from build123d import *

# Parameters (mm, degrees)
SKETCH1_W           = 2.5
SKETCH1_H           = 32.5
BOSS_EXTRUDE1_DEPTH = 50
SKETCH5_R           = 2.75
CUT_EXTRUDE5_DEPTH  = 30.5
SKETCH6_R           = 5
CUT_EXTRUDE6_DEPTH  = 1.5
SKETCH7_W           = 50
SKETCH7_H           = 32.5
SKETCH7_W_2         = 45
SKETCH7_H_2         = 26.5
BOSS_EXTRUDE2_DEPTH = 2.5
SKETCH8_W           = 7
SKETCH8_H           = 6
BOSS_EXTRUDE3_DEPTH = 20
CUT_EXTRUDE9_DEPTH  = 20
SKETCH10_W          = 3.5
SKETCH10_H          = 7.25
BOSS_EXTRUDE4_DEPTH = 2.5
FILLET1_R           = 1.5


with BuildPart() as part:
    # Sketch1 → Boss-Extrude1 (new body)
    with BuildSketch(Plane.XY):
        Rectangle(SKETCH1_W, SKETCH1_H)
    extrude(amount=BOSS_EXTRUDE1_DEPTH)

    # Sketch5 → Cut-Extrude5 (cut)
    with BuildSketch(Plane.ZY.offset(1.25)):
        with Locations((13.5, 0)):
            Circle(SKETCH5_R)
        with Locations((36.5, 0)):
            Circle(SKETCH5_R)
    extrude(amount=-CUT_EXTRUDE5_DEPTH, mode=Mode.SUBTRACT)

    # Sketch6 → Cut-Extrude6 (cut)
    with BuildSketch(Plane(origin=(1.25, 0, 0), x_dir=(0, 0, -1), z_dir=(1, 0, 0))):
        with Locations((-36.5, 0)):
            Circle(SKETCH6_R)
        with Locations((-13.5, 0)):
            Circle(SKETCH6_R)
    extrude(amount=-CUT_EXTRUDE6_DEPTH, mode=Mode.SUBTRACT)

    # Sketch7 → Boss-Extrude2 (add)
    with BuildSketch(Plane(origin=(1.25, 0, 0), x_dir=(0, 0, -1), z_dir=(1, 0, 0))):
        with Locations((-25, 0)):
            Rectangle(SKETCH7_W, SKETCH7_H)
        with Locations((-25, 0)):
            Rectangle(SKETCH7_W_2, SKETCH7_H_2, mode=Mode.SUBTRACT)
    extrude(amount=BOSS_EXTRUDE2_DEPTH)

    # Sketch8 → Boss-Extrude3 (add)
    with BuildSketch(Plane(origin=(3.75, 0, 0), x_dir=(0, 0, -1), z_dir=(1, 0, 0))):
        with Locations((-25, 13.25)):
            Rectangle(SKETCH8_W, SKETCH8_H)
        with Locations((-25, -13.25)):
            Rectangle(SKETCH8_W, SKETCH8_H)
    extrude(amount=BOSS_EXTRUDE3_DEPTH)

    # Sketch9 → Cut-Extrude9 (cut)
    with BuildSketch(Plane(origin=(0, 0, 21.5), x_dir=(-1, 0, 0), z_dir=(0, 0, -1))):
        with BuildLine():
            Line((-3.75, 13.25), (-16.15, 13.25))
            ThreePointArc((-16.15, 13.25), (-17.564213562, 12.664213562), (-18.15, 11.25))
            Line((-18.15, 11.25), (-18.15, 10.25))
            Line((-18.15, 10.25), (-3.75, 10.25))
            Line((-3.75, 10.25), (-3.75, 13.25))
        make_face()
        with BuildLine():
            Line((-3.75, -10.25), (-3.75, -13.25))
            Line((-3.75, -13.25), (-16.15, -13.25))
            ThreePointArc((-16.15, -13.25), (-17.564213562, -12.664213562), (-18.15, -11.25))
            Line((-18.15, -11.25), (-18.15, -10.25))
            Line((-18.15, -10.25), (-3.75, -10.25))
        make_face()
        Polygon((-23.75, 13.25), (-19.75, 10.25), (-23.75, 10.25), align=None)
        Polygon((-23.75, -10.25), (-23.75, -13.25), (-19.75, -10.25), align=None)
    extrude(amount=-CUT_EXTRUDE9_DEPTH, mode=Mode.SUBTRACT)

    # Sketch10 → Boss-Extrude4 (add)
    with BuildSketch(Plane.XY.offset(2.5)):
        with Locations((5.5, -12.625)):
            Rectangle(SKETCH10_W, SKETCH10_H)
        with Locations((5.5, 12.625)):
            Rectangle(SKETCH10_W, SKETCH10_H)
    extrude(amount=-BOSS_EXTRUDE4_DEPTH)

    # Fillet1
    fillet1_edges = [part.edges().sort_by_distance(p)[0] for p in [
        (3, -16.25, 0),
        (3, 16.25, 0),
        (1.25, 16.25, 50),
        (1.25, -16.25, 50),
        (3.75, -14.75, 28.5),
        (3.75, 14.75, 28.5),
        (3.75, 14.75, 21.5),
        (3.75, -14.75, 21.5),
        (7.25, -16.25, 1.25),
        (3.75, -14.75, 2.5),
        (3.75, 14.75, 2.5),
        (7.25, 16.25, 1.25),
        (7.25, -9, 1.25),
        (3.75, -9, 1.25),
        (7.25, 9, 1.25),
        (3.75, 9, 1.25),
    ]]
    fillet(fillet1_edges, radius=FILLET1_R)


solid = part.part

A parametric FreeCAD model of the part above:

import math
import FreeCAD as App
import Part
import Sketcher

V = App.Vector


def edges_at(feature, points):
    """Names of the edges that pass closest to the given points."""
    edges = feature.Shape.Edges
    near = lambda p: min(range(len(edges)), key=lambda i: edges[i].distToShape(Part.Vertex(*p))[0])
    return sorted({f"Edge{near(p) + 1}" for p in points})


def add_polygon(sketch, points):
    """Adds a closed chain of lines whose ends are joined by coincident constraints."""
    first, n = sketch.GeometryCount, len(points)
    for a, b in zip(points, points[1:] + points[:1]):
        sketch.addGeometry(Part.LineSegment(App.Vector(*a, 0), App.Vector(*b, 0)), False)
    for i in range(n):
        sketch.addConstraint(Sketcher.Constraint("Coincident", first + i, 2, first + (i + 1) % n, 1))

doc = App.newDocument("Part")
body = doc.addObject("PartDesign::Body", "Body")

# Sketch on XY plane
sketch1 = doc.addObject("Sketcher::SketchObject", "Sketch")
body.addObject(sketch1)
sketch1.AttachmentSupport = (doc.XY_Plane, [""])
sketch1.MapMode = "FlatFace"
add_polygon(sketch1, [(-1.2, 16.2), (-1.2, -16.2), (1.2, -16.2), (1.2, 16.2)])  # lines 0-3
sketch1.addConstraint([
    Sketcher.Constraint("Vertical", 0),
    Sketcher.Constraint("Horizontal", 1),
    Sketcher.Constraint("Vertical", 2),
    Sketcher.Constraint("Horizontal", 3),
    Sketcher.Constraint("Symmetric", 0, 2, 2, 2, -1, 1),
    Sketcher.Constraint("DistanceX", 1, 1, 1, 2, 2.5),
    Sketcher.Constraint("DistanceY", 0, 2, 0, 1, 32.5),
])
pad1 = doc.addObject("PartDesign::Pad", "Pad")
body.addObject(pad1)
pad1.Profile = sketch1
pad1.Length = 50

# Sketch on YZ plane
sketch2 = doc.addObject("Sketcher::SketchObject", "Sketch001")
body.addObject(sketch2)
sketch2.AttachmentSupport = (doc.YZ_Plane, [""])
sketch2.MapMode = "FlatFace"
sketch2.AttachmentOffset = App.Placement(V(0, 0, -1.25), App.Rotation())
sketch2.addGeometry([
    Part.Circle(V(0, 13.5, 0), V(0, 0, 1), 2.8),
    Part.Circle(V(0, 36.5, 0), V(0, 0, 1), 2.8),
], False)
sketch2.addConstraint([
    Sketcher.Constraint("Equal", 0, 1),
    Sketcher.Constraint("PointOnObject", 0, 3, -2),
    Sketcher.Constraint("PointOnObject", 1, 3, -2),
    Sketcher.Constraint("Diameter", 0, 5.5),
    Sketcher.Constraint("DistanceY", 0, 3, 1, 3, 23.0),
    Sketcher.Constraint("DistanceY", -1, 1, 0, 3, 13.5),
])
pocket1 = doc.addObject("PartDesign::Pocket", "Pocket")
body.addObject(pocket1)
pocket1.Profile = sketch2
pocket1.Length = 30.5
pocket1.Reversed = True

# Sketch on YZ plane
sketch3 = doc.addObject("Sketcher::SketchObject", "Sketch002")
body.addObject(sketch3)
sketch3.AttachmentSupport = (doc.YZ_Plane, [""])
sketch3.MapMode = "FlatFace"
sketch3.AttachmentOffset = App.Placement(V(0, 0, 1.25), App.Rotation())
sketch3.addGeometry([
    Part.Circle(V(0, 36, 0), V(0, 0, 1), 5),
    Part.Circle(V(0, 14, 0), V(0, 0, 1), 5),
], False)
sketch3.addConstraint([
    Sketcher.Constraint("Equal", 0, 1),
    Sketcher.Constraint("PointOnObject", 0, 3, -2),
    Sketcher.Constraint("PointOnObject", 1, 3, -2),
    Sketcher.Constraint("Diameter", 0, 10.0),
    Sketcher.Constraint("DistanceY", 1, 3, 0, 3, 23.0),
    Sketcher.Constraint("DistanceY", -1, 1, 0, 3, 36.5),
])
pocket2 = doc.addObject("PartDesign::Pocket", "Pocket001")
body.addObject(pocket2)
pocket2.Profile = sketch3
pocket2.Length = 1.5

# Sketch on YZ plane
sketch4 = doc.addObject("Sketcher::SketchObject", "Sketch003")
body.addObject(sketch4)
sketch4.AttachmentSupport = (doc.YZ_Plane, [""])
sketch4.MapMode = "FlatFace"
sketch4.AttachmentOffset = App.Placement(V(0, 0, 1.25), App.Rotation())
add_polygon(sketch4, [(16, 50), (-16, 50), (-16, 0), (16, 0)])  # lines 0-3
add_polygon(sketch4, [(-13, 2), (-13, 48), (13, 48), (13, 2)])  # lines 4-7
sketch4.addConstraint([
    Sketcher.Constraint("Horizontal", 0),
    Sketcher.Constraint("Vertical", 1),
    Sketcher.Constraint("Horizontal", 2),
    Sketcher.Constraint("Vertical", 3),
    Sketcher.Constraint("Vertical", 4),
    Sketcher.Constraint("Horizontal", 5),
    Sketcher.Constraint("Vertical", 6),
    Sketcher.Constraint("Horizontal", 7),
    Sketcher.Constraint("Symmetric", 1, 2, 2, 2, -1, 1),
    Sketcher.Constraint("DistanceY", 1, 2, 1, 1, 50.0),
    Sketcher.Constraint("DistanceY", 4, 1, 4, 2, 45.0),
    Sketcher.Constraint("DistanceX", 0, 2, 0, 1, 32.5),
    Sketcher.Constraint("DistanceX", 5, 1, 5, 2, 26.5),
    Sketcher.Constraint("DistanceX", 0, 2, 4, 2, 3.0),
    Sketcher.Constraint("DistanceY", -1, 1, 4, 2, 47.5),
])
pad2 = doc.addObject("PartDesign::Pad", "Pad001")
body.addObject(pad2)
pad2.Profile = sketch4
pad2.Length = 2.5

# Sketch on YZ plane
sketch5 = doc.addObject("Sketcher::SketchObject", "Sketch004")
body.addObject(sketch5)
sketch5.AttachmentSupport = (doc.YZ_Plane, [""])
sketch5.MapMode = "FlatFace"
sketch5.AttachmentOffset = App.Placement(V(0, 0, 3.75), App.Rotation())
add_polygon(sketch5, [(16, 28), (10, 28), (10, 22), (16, 22)])  # lines 0-3
add_polygon(sketch5, [(-10, 28), (-16, 28), (-16, 22), (-10, 22)])  # lines 4-7
sketch5.addConstraint([
    Sketcher.Constraint("Horizontal", 0),
    Sketcher.Constraint("Vertical", 1),
    Sketcher.Constraint("Horizontal", 2),
    Sketcher.Constraint("Vertical", 3),
    Sketcher.Constraint("Horizontal", 4),
    Sketcher.Constraint("Vertical", 5),
    Sketcher.Constraint("Horizontal", 6),
    Sketcher.Constraint("Vertical", 7),
    Sketcher.Constraint("Symmetric", 3, 2, 4, 2, -2),
    Sketcher.Constraint("Symmetric", 1, 2, 6, 2, -2),
    Sketcher.Constraint("DistanceX", 0, 2, 0, 1, 6.0),
    Sketcher.Constraint("DistanceY", 1, 2, 1, 1, 7.0),
    Sketcher.Constraint("DistanceY", -1, 1, 0, 2, 28.5),
    Sketcher.Constraint("DistanceX", 4, 2, 0, 2, 26.5),
])
pad3 = doc.addObject("PartDesign::Pad", "Pad002")
body.addObject(pad3)
pad3.Profile = sketch5
pad3.Length = 20

# Sketch on XY plane
sketch6 = doc.addObject("Sketcher::SketchObject", "Sketch005")
body.addObject(sketch6)
sketch6.AttachmentSupport = (doc.XY_Plane, [""])
sketch6.MapMode = "FlatFace"
sketch6.AttachmentOffset = App.Placement(V(0, 0, 21.5), App.Rotation())
sketch6.addGeometry(Part.LineSegment(V(3.8, 13.2, 0), V(16.1, 13.2, 0)), False)  # 0
sketch6.addGeometry(Part.ArcOfCircle(Part.Circle(V(16.1, 11.2, 0), V(0, 0, 1), 2), math.radians(0), math.radians(90)), False)  # 1
sketch6.addGeometry(Part.LineSegment(V(18.1, 11.2, 0), V(18.1, 10.2, 0)), False)  # 2
sketch6.addGeometry(Part.LineSegment(V(18.1, 10.2, 0), V(3.8, 10.2, 0)), False)  # 3
sketch6.addGeometry(Part.LineSegment(V(3.8, 10.2, 0), V(3.8, 13.2, 0)), False)  # 4
sketch6.addGeometry(Part.LineSegment(V(3.8, -13.2, 0), V(3.8, -10.2, 0)), False)  # 5
sketch6.addGeometry(Part.LineSegment(V(3.8, -10.2, 0), V(18.1, -10.2, 0)), False)  # 6
sketch6.addGeometry(Part.LineSegment(V(18.1, -10.2, 0), V(18.1, -11.2, 0)), False)  # 7
sketch6.addGeometry(Part.ArcOfCircle(Part.Circle(V(16.1, -11.2, 0), V(0, 0, 1), 2), math.radians(-90), math.radians(0)), False)  # 8
sketch6.addGeometry(Part.LineSegment(V(16.1, -13.2, 0), V(3.8, -13.2, 0)), False)  # 9
add_polygon(sketch6, [(19.8, 10.2), (23.8, 13.2), (23.8, 10.2)])  # lines 10-12
add_polygon(sketch6, [(23.8, -10.2), (23.8, -13.2), (19.8, -10.2)])  # lines 13-15
sketch6.addConstraint([
    Sketcher.Constraint("Tangent", 0, 2, 1, 2),
    Sketcher.Constraint("Tangent", 1, 1, 2, 1),
    Sketcher.Constraint("Coincident", 2, 2, 3, 1),
    Sketcher.Constraint("Coincident", 3, 2, 4, 1),
    Sketcher.Constraint("Coincident", 4, 2, 0, 1),
    Sketcher.Constraint("Coincident", 5, 2, 6, 1),
    Sketcher.Constraint("Coincident", 6, 2, 7, 1),
    Sketcher.Constraint("Tangent", 7, 2, 8, 2),
    Sketcher.Constraint("Tangent", 8, 1, 9, 1),
    Sketcher.Constraint("Coincident", 9, 2, 5, 1),
    Sketcher.Constraint("Horizontal", 0),
    Sketcher.Constraint("Vertical", 2),
    Sketcher.Constraint("Horizontal", 3),
    Sketcher.Constraint("Vertical", 4),
    Sketcher.Constraint("Vertical", 5),
    Sketcher.Constraint("Horizontal", 6),
    Sketcher.Constraint("Vertical", 7),
    Sketcher.Constraint("Horizontal", 9),
    Sketcher.Constraint("Vertical", 11),
    Sketcher.Constraint("Horizontal", 12),
    Sketcher.Constraint("Vertical", 13),
    Sketcher.Constraint("Horizontal", 15),
    Sketcher.Constraint("Equal", 1, 8),
    Sketcher.Constraint("Symmetric", 1, 3, 8, 3, -1),
    Sketcher.Constraint("Symmetric", 3, 2, 5, 2, -1),
    Sketcher.Constraint("Symmetric", 10, 2, 13, 2, -1),
    Sketcher.Constraint("Symmetric", 12, 2, 14, 2, -1),
    Sketcher.Constraint("Horizontal", 4, 2, 10, 2),
    Sketcher.Constraint("Horizontal", 3, 2, 11, 2),
    Sketcher.Constraint("Radius", 1, 2.0),
    Sketcher.Constraint("DistanceX", 12, 2, 12, 1, 4.0),
    Sketcher.Constraint("DistanceY", 2, 2, 2, 1, 1.0),
    Sketcher.Constraint("DistanceX", 0, 1, 0, 2, 12.4),
    Sketcher.Constraint("DistanceX", 4, 2, 10, 2, 20.0),
    Sketcher.Constraint("DistanceY", 8, 3, 1, 3, 22.5),
    Sketcher.Constraint("DistanceX", -1, 1, 1, 3, 16.15),
])
pocket3 = doc.addObject("PartDesign::Pocket", "Pocket002")
body.addObject(pocket3)
pocket3.Profile = sketch6
pocket3.Length = 20
pocket3.Reversed = True

# Sketch on XY plane
sketch7 = doc.addObject("Sketcher::SketchObject", "Sketch006")
body.addObject(sketch7)
sketch7.AttachmentSupport = (doc.XY_Plane, [""])
sketch7.MapMode = "FlatFace"
sketch7.AttachmentOffset = App.Placement(V(0, 0, 2.5), App.Rotation())
add_polygon(sketch7, [(3.8, -9), (3.8, -16.2), (7.2, -16.2), (7.2, -9)])  # lines 0-3
add_polygon(sketch7, [(3.8, 16.2), (3.8, 9), (7.2, 9), (7.2, 16.2)])  # lines 4-7
sketch7.addConstraint([
    Sketcher.Constraint("Vertical", 0),
    Sketcher.Constraint("Horizontal", 1),
    Sketcher.Constraint("Vertical", 2),
    Sketcher.Constraint("Horizontal", 3),
    Sketcher.Constraint("Vertical", 4),
    Sketcher.Constraint("Horizontal", 5),
    Sketcher.Constraint("Vertical", 6),
    Sketcher.Constraint("Horizontal", 7),
    Sketcher.Constraint("Symmetric", 3, 2, 4, 2, -1),
    Sketcher.Constraint("Symmetric", 1, 2, 6, 2, -1),
    Sketcher.Constraint("DistanceX", 1, 1, 1, 2, 3.5),
    Sketcher.Constraint("DistanceY", 2, 2, -1, 1, 9.0),
    Sketcher.Constraint("DistanceY", 0, 2, 0, 1, 7.25),
    Sketcher.Constraint("DistanceX", -1, 1, 0, 2, 3.75),
])
pad4 = doc.addObject("PartDesign::Pad", "Pad003")
body.addObject(pad4)
pad4.Profile = sketch7
pad4.Length = 2.5
pad4.Reversed = True
doc.recompute()

fillet = doc.addObject("PartDesign::Fillet", "Fillet")
body.addObject(fillet)
fillet.Base = (pad4, edges_at(pad4, [
    (3, -16.25, 0),
    (3, 16.25, 0),
    (1.25, 16.25, 50),
    (1.25, -16.25, 50),
    (3.75, -14.75, 28.5),
    (3.75, 14.75, 28.5),
    (3.75, 14.75, 21.5),
    (3.75, -14.75, 21.5),
    (7.25, -16.25, 1.25),
    (3.75, -14.75, 2.5),
    (3.75, 14.75, 2.5),
    (7.25, 16.25, 1.25),
    (7.25, -9, 1.25),
    (3.75, -9, 1.25),
    (7.25, 9, 1.25),
    (3.75, 9, 1.25),
]))
fillet.Radius = 1.5

doc.recompute()
